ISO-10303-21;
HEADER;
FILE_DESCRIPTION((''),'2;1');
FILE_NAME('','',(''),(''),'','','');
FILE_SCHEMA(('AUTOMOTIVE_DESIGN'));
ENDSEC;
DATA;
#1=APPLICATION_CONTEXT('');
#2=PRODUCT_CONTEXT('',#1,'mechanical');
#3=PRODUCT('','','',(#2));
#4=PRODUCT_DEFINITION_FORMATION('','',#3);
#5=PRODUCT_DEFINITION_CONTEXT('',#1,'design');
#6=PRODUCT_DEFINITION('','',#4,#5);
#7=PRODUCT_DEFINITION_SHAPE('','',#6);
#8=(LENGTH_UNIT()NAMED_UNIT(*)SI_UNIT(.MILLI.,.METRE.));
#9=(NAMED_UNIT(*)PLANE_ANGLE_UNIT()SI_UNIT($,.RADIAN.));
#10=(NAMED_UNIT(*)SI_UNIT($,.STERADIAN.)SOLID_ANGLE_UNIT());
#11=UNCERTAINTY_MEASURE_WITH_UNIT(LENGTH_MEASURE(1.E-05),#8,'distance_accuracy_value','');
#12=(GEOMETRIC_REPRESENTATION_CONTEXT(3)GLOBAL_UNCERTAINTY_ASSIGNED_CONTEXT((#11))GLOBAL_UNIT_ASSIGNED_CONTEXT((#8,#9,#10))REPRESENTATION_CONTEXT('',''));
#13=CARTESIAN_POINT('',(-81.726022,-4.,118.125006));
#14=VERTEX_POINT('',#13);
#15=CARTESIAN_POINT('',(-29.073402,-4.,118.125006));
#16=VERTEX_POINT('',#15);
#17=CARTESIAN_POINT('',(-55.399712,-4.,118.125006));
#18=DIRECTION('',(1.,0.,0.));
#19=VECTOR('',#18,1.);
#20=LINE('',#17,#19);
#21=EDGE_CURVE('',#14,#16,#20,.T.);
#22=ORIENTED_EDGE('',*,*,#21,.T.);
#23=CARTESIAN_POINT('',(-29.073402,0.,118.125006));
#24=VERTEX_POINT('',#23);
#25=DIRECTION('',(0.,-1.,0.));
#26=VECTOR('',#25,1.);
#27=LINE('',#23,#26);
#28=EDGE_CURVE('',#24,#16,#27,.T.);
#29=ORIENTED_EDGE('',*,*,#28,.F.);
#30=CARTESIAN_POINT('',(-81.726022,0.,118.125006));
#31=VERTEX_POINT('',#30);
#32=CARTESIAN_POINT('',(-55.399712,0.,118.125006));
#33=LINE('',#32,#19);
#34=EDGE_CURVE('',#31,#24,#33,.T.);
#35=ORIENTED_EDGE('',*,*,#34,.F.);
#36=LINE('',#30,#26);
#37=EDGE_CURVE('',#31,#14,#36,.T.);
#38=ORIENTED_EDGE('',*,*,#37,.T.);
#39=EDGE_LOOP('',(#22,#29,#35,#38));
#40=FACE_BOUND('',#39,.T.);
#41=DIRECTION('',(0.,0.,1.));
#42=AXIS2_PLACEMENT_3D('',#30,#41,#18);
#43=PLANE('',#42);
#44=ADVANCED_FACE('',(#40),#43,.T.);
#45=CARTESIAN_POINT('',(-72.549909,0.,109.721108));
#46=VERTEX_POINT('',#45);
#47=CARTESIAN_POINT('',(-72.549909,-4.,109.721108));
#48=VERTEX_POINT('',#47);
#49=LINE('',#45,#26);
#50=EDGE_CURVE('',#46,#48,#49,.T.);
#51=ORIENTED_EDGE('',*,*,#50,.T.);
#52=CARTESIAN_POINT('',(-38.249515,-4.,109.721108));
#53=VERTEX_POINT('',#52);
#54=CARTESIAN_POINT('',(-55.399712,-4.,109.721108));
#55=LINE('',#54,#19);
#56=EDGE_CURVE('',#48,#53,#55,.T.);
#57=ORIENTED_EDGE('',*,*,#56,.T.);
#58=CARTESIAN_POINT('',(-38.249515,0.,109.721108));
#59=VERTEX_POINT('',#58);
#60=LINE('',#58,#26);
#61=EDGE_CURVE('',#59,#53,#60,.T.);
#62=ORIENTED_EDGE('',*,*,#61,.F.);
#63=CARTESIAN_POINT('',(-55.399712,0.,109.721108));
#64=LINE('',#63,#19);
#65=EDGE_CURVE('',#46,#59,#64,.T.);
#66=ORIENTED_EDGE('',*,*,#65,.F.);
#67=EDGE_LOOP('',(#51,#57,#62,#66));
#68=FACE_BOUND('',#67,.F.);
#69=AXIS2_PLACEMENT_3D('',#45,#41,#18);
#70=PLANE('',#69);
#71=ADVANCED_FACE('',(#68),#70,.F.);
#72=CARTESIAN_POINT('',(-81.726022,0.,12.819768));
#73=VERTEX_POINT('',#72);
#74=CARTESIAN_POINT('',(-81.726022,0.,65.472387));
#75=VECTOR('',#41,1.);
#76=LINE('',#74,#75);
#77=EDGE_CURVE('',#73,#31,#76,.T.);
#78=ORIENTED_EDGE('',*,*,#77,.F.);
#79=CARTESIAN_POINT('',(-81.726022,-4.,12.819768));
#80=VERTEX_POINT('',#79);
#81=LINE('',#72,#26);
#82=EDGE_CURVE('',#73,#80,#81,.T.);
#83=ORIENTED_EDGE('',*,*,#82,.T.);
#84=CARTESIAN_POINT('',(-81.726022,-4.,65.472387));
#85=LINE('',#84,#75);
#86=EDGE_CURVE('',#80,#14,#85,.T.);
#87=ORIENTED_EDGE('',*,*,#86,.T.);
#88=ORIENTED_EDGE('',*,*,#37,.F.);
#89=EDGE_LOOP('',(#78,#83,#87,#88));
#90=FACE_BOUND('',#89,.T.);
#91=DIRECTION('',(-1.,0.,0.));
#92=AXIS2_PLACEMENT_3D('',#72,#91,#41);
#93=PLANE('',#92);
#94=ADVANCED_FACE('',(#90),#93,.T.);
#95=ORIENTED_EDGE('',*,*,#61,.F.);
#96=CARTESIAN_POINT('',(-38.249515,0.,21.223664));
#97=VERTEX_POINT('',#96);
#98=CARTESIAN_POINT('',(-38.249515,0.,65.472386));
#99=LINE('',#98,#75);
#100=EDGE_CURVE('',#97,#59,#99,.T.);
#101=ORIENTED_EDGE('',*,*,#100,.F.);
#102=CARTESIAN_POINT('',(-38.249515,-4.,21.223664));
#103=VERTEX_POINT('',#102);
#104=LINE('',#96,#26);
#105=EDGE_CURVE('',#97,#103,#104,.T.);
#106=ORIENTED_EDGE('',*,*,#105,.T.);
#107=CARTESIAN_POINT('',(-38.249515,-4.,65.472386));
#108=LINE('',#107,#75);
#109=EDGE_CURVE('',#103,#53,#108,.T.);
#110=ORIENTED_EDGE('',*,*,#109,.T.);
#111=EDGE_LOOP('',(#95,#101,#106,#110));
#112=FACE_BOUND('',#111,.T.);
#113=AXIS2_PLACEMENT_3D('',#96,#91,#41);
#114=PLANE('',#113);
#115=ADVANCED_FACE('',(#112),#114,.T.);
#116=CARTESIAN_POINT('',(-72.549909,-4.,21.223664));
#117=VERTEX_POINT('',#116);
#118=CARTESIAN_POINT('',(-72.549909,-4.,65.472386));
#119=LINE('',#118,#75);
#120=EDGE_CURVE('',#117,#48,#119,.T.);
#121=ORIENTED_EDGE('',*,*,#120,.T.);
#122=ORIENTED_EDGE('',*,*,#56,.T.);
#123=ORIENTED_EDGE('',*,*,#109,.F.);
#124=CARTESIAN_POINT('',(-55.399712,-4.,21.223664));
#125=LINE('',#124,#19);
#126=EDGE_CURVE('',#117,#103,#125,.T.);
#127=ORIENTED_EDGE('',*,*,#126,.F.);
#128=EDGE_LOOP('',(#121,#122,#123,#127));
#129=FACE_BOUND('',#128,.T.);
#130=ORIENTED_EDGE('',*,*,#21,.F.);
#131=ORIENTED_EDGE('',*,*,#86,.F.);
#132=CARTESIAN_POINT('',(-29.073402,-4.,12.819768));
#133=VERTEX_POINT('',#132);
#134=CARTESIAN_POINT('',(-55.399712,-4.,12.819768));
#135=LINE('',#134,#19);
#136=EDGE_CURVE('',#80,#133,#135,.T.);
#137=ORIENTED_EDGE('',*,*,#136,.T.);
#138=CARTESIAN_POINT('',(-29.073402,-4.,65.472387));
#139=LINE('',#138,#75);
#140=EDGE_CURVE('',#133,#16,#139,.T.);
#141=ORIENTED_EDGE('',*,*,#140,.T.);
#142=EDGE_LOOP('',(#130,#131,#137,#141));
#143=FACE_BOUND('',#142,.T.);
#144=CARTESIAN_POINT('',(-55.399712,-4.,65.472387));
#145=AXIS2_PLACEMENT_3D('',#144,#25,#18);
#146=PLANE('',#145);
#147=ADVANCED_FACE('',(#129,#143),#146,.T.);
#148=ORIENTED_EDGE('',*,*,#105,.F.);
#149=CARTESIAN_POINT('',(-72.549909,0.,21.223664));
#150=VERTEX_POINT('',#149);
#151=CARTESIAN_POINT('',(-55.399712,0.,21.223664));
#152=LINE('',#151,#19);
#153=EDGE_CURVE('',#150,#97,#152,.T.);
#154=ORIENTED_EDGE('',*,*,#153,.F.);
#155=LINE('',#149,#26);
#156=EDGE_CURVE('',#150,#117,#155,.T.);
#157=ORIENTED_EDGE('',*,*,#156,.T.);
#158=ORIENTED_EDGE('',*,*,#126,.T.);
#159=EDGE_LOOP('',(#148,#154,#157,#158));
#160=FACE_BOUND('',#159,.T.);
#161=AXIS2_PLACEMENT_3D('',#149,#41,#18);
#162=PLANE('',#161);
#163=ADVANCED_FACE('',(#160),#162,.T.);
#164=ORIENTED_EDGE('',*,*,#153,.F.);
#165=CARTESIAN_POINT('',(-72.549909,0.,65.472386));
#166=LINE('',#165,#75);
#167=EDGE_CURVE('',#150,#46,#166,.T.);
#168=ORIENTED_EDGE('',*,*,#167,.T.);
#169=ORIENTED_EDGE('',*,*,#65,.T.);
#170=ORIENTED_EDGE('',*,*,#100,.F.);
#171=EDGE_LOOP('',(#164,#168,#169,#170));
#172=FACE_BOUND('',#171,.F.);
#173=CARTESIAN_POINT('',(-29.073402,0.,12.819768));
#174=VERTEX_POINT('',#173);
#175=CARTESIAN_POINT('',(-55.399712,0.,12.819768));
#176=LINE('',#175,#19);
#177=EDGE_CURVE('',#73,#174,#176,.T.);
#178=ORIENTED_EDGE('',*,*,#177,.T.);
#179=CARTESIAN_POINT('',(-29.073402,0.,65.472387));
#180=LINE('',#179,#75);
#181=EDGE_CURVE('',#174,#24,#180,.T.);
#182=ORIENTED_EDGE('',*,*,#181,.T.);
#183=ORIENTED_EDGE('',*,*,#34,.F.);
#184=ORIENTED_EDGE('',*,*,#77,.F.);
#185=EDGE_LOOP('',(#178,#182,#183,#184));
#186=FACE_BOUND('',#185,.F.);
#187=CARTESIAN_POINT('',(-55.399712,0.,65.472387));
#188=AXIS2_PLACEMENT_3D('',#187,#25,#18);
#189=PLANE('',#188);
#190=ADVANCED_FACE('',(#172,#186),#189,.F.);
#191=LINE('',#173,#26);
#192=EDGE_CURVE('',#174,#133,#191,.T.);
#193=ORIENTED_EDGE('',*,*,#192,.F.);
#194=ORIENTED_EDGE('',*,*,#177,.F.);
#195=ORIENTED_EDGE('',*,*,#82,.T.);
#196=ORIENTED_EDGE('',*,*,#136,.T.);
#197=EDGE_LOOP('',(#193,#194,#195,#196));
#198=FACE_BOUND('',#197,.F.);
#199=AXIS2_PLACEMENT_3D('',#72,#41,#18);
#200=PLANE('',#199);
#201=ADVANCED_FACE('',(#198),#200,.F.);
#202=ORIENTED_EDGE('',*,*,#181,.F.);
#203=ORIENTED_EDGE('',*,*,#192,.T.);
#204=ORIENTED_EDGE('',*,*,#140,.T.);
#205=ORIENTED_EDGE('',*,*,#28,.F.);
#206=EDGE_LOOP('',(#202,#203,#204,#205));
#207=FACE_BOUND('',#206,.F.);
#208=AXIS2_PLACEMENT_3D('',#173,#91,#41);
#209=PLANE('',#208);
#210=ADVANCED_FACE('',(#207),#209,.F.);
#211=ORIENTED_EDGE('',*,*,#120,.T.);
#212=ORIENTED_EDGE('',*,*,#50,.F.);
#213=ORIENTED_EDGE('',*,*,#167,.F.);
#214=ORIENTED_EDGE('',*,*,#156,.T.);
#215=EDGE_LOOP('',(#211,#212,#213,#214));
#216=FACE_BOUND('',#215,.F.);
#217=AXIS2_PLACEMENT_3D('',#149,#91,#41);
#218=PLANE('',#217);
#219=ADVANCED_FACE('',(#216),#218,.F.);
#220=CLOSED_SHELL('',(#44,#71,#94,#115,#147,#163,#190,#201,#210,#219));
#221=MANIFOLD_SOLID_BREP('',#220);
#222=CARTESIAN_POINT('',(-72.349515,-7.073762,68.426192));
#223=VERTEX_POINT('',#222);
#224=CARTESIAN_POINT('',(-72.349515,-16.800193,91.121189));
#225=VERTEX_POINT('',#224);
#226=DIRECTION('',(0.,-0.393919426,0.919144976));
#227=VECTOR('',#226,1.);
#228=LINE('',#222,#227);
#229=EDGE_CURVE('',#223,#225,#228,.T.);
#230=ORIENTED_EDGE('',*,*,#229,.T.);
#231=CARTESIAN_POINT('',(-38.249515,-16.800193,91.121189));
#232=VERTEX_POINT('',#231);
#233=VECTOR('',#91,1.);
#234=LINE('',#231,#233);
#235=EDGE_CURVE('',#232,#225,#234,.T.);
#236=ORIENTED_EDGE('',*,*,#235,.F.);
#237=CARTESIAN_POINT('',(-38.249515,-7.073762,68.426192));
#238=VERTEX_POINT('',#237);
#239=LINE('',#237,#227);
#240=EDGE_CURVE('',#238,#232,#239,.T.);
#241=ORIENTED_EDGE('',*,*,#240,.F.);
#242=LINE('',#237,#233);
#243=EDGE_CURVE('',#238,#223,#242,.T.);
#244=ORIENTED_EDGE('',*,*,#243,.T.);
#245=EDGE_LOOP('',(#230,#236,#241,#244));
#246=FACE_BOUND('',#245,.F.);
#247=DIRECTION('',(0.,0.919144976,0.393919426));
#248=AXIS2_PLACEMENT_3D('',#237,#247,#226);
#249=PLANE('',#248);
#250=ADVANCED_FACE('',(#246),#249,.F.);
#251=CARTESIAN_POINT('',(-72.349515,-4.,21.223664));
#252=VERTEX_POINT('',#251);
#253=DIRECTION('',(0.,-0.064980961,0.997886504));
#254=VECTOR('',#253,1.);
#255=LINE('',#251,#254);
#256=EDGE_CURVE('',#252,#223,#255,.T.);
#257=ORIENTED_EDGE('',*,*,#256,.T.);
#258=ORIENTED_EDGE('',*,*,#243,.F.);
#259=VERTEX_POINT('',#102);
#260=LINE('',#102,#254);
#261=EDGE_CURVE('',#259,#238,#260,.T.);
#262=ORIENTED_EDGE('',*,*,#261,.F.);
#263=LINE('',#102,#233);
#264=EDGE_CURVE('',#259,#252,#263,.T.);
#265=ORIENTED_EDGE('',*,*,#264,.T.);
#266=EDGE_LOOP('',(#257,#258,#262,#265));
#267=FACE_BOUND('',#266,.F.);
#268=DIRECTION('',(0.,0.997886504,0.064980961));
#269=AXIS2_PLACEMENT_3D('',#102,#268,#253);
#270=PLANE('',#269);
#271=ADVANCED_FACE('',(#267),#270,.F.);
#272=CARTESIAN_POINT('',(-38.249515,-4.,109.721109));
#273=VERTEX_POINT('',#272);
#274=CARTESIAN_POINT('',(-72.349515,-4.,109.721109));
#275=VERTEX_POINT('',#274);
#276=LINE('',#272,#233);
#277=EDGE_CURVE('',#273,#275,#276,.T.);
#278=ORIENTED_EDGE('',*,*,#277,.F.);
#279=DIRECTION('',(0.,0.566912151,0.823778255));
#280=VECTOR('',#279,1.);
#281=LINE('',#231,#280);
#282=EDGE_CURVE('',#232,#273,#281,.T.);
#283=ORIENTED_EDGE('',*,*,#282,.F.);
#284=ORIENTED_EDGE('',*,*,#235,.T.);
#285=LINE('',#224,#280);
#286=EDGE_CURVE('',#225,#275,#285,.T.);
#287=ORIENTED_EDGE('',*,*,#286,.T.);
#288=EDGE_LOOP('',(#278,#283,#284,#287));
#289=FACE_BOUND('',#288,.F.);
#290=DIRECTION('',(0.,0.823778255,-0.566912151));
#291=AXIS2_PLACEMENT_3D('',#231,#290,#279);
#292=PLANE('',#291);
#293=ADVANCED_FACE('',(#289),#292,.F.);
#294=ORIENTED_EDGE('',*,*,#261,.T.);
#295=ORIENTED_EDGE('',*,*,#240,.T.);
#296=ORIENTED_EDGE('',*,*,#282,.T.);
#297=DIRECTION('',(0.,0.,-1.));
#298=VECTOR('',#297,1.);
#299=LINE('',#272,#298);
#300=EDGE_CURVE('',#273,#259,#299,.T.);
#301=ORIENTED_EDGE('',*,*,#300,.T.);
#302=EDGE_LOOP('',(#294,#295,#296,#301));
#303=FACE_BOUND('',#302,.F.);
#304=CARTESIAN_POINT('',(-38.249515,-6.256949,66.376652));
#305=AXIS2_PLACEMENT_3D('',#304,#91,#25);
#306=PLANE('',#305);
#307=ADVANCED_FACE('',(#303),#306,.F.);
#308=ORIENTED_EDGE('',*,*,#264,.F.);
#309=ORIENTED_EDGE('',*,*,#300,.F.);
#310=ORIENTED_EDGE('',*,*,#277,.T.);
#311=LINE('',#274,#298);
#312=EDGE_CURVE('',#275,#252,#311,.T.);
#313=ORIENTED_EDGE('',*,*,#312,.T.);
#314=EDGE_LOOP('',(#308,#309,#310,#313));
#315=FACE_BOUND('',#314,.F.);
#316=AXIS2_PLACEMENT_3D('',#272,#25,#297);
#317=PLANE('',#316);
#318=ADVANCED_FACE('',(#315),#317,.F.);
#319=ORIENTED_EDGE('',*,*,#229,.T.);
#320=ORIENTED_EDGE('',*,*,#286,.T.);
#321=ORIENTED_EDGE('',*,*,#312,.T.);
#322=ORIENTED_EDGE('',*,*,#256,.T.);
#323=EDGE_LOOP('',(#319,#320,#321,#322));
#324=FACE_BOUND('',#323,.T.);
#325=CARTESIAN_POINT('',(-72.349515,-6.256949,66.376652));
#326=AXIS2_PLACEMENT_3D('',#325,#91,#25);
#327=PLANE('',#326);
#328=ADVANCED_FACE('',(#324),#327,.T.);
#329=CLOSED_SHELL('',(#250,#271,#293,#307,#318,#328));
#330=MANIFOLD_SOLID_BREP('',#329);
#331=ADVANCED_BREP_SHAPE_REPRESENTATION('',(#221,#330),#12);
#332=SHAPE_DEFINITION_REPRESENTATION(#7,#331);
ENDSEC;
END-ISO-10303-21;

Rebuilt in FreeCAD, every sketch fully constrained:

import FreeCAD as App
import Part
import Sketcher
from FreeCAD import Vector

doc = App.newDocument("Part")
body = doc.addObject("PartDesign::Body", "Body")

sketch1 = doc.addObject("Sketcher::SketchObject", "Sketch")
body.addObject(sketch1)
sketch1.AttachmentSupport = (doc.XZ_Plane, [""])
sketch1.MapMode = "FlatFace"
sketch1.addGeometry([
    Part.LineSegment(Vector(-82, 118, 0), Vector(-82, 13, 0)),
    Part.LineSegment(Vector(-82, 13, 0), Vector(-29, 13, 0)),
    Part.LineSegment(Vector(-29, 13, 0), Vector(-29, 118, 0)),
    Part.LineSegment(Vector(-29, 118, 0), Vector(-82, 118, 0)),
    Part.LineSegment(Vector(-38, 21, 0), Vector(-73, 21, 0)),
    Part.LineSegment(Vector(-73, 21, 0), Vector(-73, 110, 0)),
    Part.LineSegment(Vector(-73, 110, 0), Vector(-38, 110, 0)),
    Part.LineSegment(Vector(-38, 110, 0), Vector(-38, 21, 0)),
], False)
sketch1.addConstraint([
    Sketcher.Constraint("Coincident", 0, 2, 1, 1),
    Sketcher.Constraint("Coincident", 1, 2, 2, 1),
    Sketcher.Constraint("Coincident", 2, 2, 3, 1),
    Sketcher.Constraint("Coincident", 3, 2, 0, 1),
    Sketcher.Constraint("Coincident", 4, 2, 5, 1),
    Sketcher.Constraint("Coincident", 5, 2, 6, 1),
    Sketcher.Constraint("Coincident", 6, 2, 7, 1),
    Sketcher.Constraint("Coincident", 7, 2, 4, 1),
    Sketcher.Constraint("Vertical", 0),
    Sketcher.Constraint("Horizontal", 1),
    Sketcher.Constraint("Vertical", 2),
    Sketcher.Constraint("Horizontal", 3),
    Sketcher.Constraint("Horizontal", 4),
    Sketcher.Constraint("Vertical", 5),
    Sketcher.Constraint("Horizontal", 6),
    Sketcher.Constraint("Vertical", 7),
    Sketcher.Constraint("DistanceX", 1, 1, 1, 2, 52.65262),
    Sketcher.Constraint("DistanceY", 0, 2, 0, 1, 105.305238),
    Sketcher.Constraint("DistanceX", 4, 2, 4, 1, 34.300394),
    Sketcher.Constraint("DistanceY", 5, 1, 5, 2, 88.497445),
    Sketcher.Constraint("DistanceX", 0, 2, -1, 1, 81.726022),
    Sketcher.Constraint("DistanceX", 4, 2, -1, 1, 72.549909),
    Sketcher.Constraint("DistanceY", -1, 1, 5, 2, 109.721108),
    Sketcher.Constraint("DistanceY", 0, 2, 5, 2, 96.901341),
])
pad1 = doc.addObject("PartDesign::Pad", "Pad")
body.addObject(pad1)
pad1.Profile = sketch1
pad1.Length = 4
body2 = doc.addObject("PartDesign::Body", "Body001")

sketch2 = doc.addObject("Sketcher::SketchObject", "Sketch001")
body2.addObject(sketch2)
sketch2.AttachmentSupport = (doc.getObject("YZ_Plane001"), [""])
sketch2.MapMode = "FlatFace"
sketch2.AttachmentOffset = App.Placement(Vector(0, 0, -38.249515), App.Rotation())
sketch2.addGeometry([
    Part.LineSegment(Vector(-17, 91, 0), Vector(-4, 110, 0)),
    Part.LineSegment(Vector(-4, 110, 0), Vector(-4, 21, 0)),
    Part.LineSegment(Vector(-4, 21, 0), Vector(-7, 68, 0)),
    Part.LineSegment(Vector(-7, 68, 0), Vector(-17, 91, 0)),
], False)
sketch2.addConstraint([
    Sketcher.Constraint("Coincident", 0, 2, 1, 1),
    Sketcher.Constraint("Coincident", 1, 2, 2, 1),
    Sketcher.Constraint("Coincident", 2, 2, 3, 1),
    Sketcher.Constraint("Coincident", 3, 2, 0, 1),
    Sketcher.Constraint("Vertical", 1),
    Sketcher.Constraint("DistanceX", 0, 2, -1, 1, 4.0),
    Sketcher.Constraint("Distance", 2, 47.302502),
    Sketcher.Constraint("DistanceY", 1, 2, 1, 1, 88.497445),
    Sketcher.Constraint("DistanceY", -1, 1, 0, 2, 109.721109),
    Sketcher.Constraint("DistanceY", -1, 1, 2, 2, 68.426192),
    Sketcher.Constraint("DistanceY", -1, 1, 3, 2, 91.121189),
    Sketcher.Constraint("DistanceX", 3, 2, 2, 2, 9.726431),
])
pad2 = doc.addObject("PartDesign::Pad", "Pad001")
body2.addObject(pad2)
pad2.Profile = sketch2
pad2.Length = 34.1
pad2.Reversed = True

doc.recompute()
